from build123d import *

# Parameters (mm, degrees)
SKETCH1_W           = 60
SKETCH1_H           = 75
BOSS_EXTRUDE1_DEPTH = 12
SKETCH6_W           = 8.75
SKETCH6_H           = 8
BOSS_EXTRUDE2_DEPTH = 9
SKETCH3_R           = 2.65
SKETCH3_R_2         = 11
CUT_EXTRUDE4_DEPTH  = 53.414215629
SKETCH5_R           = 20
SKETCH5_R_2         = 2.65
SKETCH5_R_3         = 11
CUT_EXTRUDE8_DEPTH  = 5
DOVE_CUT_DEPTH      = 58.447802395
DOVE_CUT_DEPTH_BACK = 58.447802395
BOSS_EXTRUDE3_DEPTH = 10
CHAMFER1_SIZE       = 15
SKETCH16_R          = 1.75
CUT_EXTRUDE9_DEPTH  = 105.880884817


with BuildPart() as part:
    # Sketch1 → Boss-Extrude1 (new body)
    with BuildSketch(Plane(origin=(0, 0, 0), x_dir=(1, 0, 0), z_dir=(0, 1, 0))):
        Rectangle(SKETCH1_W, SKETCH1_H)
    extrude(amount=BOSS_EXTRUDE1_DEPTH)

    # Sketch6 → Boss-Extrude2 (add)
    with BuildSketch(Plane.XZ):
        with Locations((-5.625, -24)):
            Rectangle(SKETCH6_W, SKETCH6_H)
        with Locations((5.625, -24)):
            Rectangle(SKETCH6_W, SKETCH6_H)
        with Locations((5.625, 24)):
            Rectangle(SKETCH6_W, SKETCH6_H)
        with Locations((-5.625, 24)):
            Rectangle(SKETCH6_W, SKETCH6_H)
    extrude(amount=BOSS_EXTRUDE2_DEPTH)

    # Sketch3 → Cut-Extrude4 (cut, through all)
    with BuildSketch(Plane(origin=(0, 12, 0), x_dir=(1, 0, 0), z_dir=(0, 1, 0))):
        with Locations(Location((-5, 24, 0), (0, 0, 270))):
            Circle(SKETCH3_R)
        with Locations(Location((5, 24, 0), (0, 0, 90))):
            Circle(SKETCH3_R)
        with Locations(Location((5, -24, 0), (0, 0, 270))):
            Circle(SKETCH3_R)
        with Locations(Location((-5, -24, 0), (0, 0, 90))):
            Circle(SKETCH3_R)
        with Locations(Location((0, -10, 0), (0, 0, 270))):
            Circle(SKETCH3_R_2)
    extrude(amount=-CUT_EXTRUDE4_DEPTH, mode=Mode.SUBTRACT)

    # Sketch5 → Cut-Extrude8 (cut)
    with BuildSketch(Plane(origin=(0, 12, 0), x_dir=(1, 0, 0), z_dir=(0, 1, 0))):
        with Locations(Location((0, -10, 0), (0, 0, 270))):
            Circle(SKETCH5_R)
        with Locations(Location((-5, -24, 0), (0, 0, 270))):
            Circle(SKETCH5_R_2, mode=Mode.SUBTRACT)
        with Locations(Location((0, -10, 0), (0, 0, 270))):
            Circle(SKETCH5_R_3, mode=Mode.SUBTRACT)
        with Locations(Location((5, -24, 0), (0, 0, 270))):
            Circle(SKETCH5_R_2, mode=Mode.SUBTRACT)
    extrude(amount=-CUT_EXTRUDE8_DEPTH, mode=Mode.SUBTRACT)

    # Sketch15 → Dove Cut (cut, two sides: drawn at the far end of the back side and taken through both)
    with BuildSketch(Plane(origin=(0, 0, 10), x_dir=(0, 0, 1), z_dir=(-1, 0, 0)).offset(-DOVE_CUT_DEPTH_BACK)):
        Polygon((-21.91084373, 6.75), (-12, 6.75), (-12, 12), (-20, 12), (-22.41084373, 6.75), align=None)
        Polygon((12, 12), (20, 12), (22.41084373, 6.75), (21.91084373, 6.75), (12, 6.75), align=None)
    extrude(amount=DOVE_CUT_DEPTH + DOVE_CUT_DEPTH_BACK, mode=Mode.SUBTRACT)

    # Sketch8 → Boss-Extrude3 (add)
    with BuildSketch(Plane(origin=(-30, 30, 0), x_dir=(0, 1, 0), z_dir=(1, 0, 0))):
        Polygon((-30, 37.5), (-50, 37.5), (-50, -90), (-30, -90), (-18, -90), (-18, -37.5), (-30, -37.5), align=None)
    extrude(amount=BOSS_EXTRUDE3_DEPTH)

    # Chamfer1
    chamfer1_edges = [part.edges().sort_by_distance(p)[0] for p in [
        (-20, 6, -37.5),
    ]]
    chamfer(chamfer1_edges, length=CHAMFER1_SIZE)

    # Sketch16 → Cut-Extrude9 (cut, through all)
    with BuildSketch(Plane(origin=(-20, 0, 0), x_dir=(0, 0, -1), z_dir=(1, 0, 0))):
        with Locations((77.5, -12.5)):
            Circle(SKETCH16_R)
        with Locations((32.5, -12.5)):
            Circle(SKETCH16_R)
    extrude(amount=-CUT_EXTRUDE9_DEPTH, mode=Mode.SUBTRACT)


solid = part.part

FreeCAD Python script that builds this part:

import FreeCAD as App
import Part
import Sketcher
from FreeCAD import Vector
Q = App.Units.Quantity


def edges_at(feature, points):
    """Names of the edges that pass closest to the given points."""
    edges = feature.Shape.Edges
    near = lambda p: min(range(len(edges)), key=lambda i: edges[i].distToShape(Part.Vertex(*p))[0])
    return sorted({f"Edge{near(p) + 1}" for p in points})

doc = App.newDocument("Part")
body = doc.addObject("PartDesign::Body", "Body")

sketch1 = body.newObject("Sketcher::SketchObject", "Sketch")
sketch1.AttachmentSupport = (doc.getObject("XZ_Plane"), [""])
sketch1.MapMode = "FlatFace"
sketch1.addGeometry(Part.LineSegment(Vector(-30, -38, 0), Vector(-30, 38, 0)), False)
sketch1.addGeometry(Part.LineSegment(Vector(-30, 38, 0), Vector(30, 38, 0)), False)
sketch1.addGeometry(Part.LineSegment(Vector(30, 38, 0), Vector(30, -38, 0)), False)
sketch1.addGeometry(Part.LineSegment(Vector(30, -38, 0), Vector(-30, -38, 0)), False)
sketch1.addConstraint(Sketcher.Constraint("Coincident", 0, 2, 1, 1))
sketch1.addConstraint(Sketcher.Constraint("Coincident", 1, 2, 2, 1))
sketch1.addConstraint(Sketcher.Constraint("Coincident", 2, 2, 3, 1))
sketch1.addConstraint(Sketcher.Constraint("Coincident", 3, 2, 0, 1))
sketch1.addConstraint(Sketcher.Constraint("Vertical", 0))
sketch1.addConstraint(Sketcher.Constraint("Horizontal", 1))
sketch1.addConstraint(Sketcher.Constraint("Vertical", 2))
sketch1.addConstraint(Sketcher.Constraint("Horizontal", 3))
sketch1.addConstraint(Sketcher.Constraint("Symmetric", 0, 2, 2, 2, -1, 1))
sketch1.addConstraint(Sketcher.Constraint("DistanceX", 1, 1, 1, 2, Q("60 mm")))
sketch1.addConstraint(Sketcher.Constraint("DistanceY", 0, 1, 0, 2, Q("75 mm")))
pad1 = body.newObject("PartDesign::Pad", "Pad")
pad1.Profile = sketch1
pad1.Length = 12
pad1.Reversed = True

sketch2 = body.newObject("Sketcher::SketchObject", "Sketch001")
sketch2.AttachmentSupport = (doc.getObject("XZ_Plane"), [""])
sketch2.MapMode = "FlatFace"
sketch2.addGeometry(Part.LineSegment(Vector(-10, -20, 0), Vector(-10, -28, 0)), False)
sketch2.addGeometry(Part.LineSegment(Vector(-10, -28, 0), Vector(-1, -28, 0)), False)
sketch2.addGeometry(Part.LineSegment(Vector(-1, -28, 0), Vector(-1, -20, 0)), False)
sketch2.addGeometry(Part.LineSegment(Vector(-1, -20, 0), Vector(-10, -20, 0)), False)
sketch2.addGeometry(Part.LineSegment(Vector(1, -20, 0), Vector(1, -28, 0)), False)
sketch2.addGeometry(Part.LineSegment(Vector(1, -28, 0), Vector(10, -28, 0)), False)
sketch2.addGeometry(Part.LineSegment(Vector(10, -28, 0), Vector(10, -20, 0)), False)
sketch2.addGeometry(Part.LineSegment(Vector(10, -20, 0), Vector(1, -20, 0)), False)
sketch2.addGeometry(Part.LineSegment(Vector(1, 28, 0), Vector(1, 20, 0)), False)
sketch2.addGeometry(Part.LineSegment(Vector(1, 20, 0), Vector(10, 20, 0)), False)
sketch2.addGeometry(Part.LineSegment(Vector(10, 20, 0), Vector(10, 28, 0)), False)
sketch2.addGeometry(Part.LineSegment(Vector(10, 28, 0), Vector(1, 28, 0)), False)
sketch2.addGeometry(Part.LineSegment(Vector(-10, 28, 0), Vector(-10, 20, 0)), False)
sketch2.addGeometry(Part.LineSegment(Vector(-10, 20, 0), Vector(-1, 20, 0)), False)
sketch2.addGeometry(Part.LineSegment(Vector(-1, 20, 0), Vector(-1, 28, 0)), False)
sketch2.addGeometry(Part.LineSegment(Vector(-1, 28, 0), Vector(-10, 28, 0)), False)
sketch2.addConstraint(Sketcher.Constraint("Coincident", 0, 2, 1, 1))
sketch2.addConstraint(Sketcher.Constraint("Coincident", 1, 2, 2, 1))
sketch2.addConstraint(Sketcher.Constraint("Coincident", 2, 2, 3, 1))
sketch2.addConstraint(Sketcher.Constraint("Coincident", 3, 2, 0, 1))
sketch2.addConstraint(Sketcher.Constraint("Coincident", 4, 2, 5, 1))
sketch2.addConstraint(Sketcher.Constraint("Coincident", 5, 2, 6, 1))
sketch2.addConstraint(Sketcher.Constraint("Coincident", 6, 2, 7, 1))
sketch2.addConstraint(Sketcher.Constraint("Coincident", 7, 2, 4, 1))
sketch2.addConstraint(Sketcher.Constraint("Coincident", 8, 2, 9, 1))
sketch2.addConstraint(Sketcher.Constraint("Coincident", 9, 2, 10, 1))
sketch2.addConstraint(Sketcher.Constraint("Coincident", 10, 2, 11, 1))
sketch2.addConstraint(Sketcher.Constraint("Coincident", 11, 2, 8, 1))
sketch2.addConstraint(Sketcher.Constraint("Coincident", 12, 2, 13, 1))
sketch2.addConstraint(Sketcher.Constraint("Coincident", 13, 2, 14, 1))
sketch2.addConstraint(Sketcher.Constraint("Coincident", 14, 2, 15, 1))
sketch2.addConstraint(Sketcher.Constraint("Coincident", 15, 2, 12, 1))
sketch2.addConstraint(Sketcher.Constraint("Vertical", 0))
sketch2.addConstraint(Sketcher.Constraint("Horizontal", 1))
sketch2.addConstraint(Sketcher.Constraint("Vertical", 2))
sketch2.addConstraint(Sketcher.Constraint("Horizontal", 3))
sketch2.addConstraint(Sketcher.Constraint("Vertical", 4))
sketch2.addConstraint(Sketcher.Constraint("Horizontal", 5))
sketch2.addConstraint(Sketcher.Constraint("Vertical", 6))
sketch2.addConstraint(Sketcher.Constraint("Horizontal", 7))
sketch2.addConstraint(Sketcher.Constraint("Vertical", 8))
sketch2.addConstraint(Sketcher.Constraint("Horizontal", 9))
sketch2.addConstraint(Sketcher.Constraint("Vertical", 10))
sketch2.addConstraint(Sketcher.Constraint("Horizontal", 11))
sketch2.addConstraint(Sketcher.Constraint("Vertical", 12))
sketch2.addConstraint(Sketcher.Constraint("Horizontal", 13))
sketch2.addConstraint(Sketcher.Constraint("Vertical", 14))
sketch2.addConstraint(Sketcher.Constraint("Horizontal", 15))
sketch2.addConstraint(Sketcher.Constraint("Symmetric", 2, 2, 8, 2, -1, 1))
sketch2.addConstraint(Sketcher.Constraint("Symmetric", 0, 2, 10, 2, -1, 1))
sketch2.addConstraint(Sketcher.Constraint("Symmetric", 6, 2, 12, 2, -1, 1))
sketch2.addConstraint(Sketcher.Constraint("Symmetric", 4, 2, 14, 2, -1, 1))
sketch2.addConstraint(Sketcher.Constraint("Symmetric", 1, 2, 4, 2, -2))
sketch2.addConstraint(Sketcher.Constraint("Symmetric", 3, 2, 6, 2, -2))
sketch2.addConstraint(Sketcher.Constraint("DistanceY", 0, 2, 0, 1, Q("8 mm")))
sketch2.addConstraint(Sketcher.Constraint("DistanceX", 0, 2, -1, 1, Q("10 mm")))
sketch2.addConstraint(Sketcher.Constraint("DistanceY", 0, 2, -1, 1, Q("28 mm")))
sketch2.addConstraint(Sketcher.Constraint("DistanceX", 1, 1, 1, 2, Q("8.75 mm")))
pad2 = body.newObject("PartDesign::Pad", "Pad001")
pad2.Profile = sketch2
pad2.Length = 9

sketch3 = body.newObject("Sketcher::SketchObject", "Sketch002")
sketch3.AttachmentSupport = (doc.getObject("XZ_Plane"), [""])
sketch3.MapMode = "FlatFace"
sketch3.AttachmentOffset = App.Placement(Vector(0, 0, -12), App.Rotation())
sketch3.addGeometry(Part.Circle(Vector(-5, -24, 0), Vector(0, 0, 1), 2.6), False)
sketch3.addGeometry(Part.Circle(Vector(5, -24, 0), Vector(0, 0, 1), 2.6), False)
sketch3.addGeometry(Part.Circle(Vector(5, 24, 0), Vector(0, 0, 1), 2.6), False)
sketch3.addGeometry(Part.Circle(Vector(-5, 24, 0), Vector(0, 0, 1), 2.6), False)
sketch3.addGeometry(Part.Circle(Vector(0, 10, 0), Vector(0, 0, 1), 11), False)
sketch3.addConstraint(Sketcher.Constraint("Equal", 0, 1))
sketch3.addConstraint(Sketcher.Constraint("Equal", 1, 2))
sketch3.addConstraint(Sketcher.Constraint("Equal", 2, 3))
sketch3.addConstraint(Sketcher.Constraint("Symmetric", 0, 3, 2, 3, -1, 1))
sketch3.addConstraint(Sketcher.Constraint("Symmetric", 1, 3, 3, 3, -1, 1))
sketch3.addConstraint(Sketcher.Constraint("Symmetric", 0, 3, 1, 3, -2))
sketch3.addConstraint(Sketcher.Constraint("PointOnObject", 4, 3, -2))
sketch3.addConstraint(Sketcher.Constraint("Diameter", 4, Q("22 mm")))
sketch3.addConstraint(Sketcher.Constraint("Diameter", 0, Q("5.3 mm")))
sketch3.addConstraint(Sketcher.Constraint("DistanceX", 0, 3, -1, 1, Q("5 mm")))
sketch3.addConstraint(Sketcher.Constraint("DistanceY", 0, 3, -1, 1, Q("24 mm")))
sketch3.addConstraint(Sketcher.Constraint("DistanceY", -1, 1, 4, 3, Q("10 mm")))
pocket1 = body.newObject("PartDesign::Pocket", "Pocket")
pocket1.Profile = sketch3
pocket1.Type = "ThroughAll"
pocket1.Reversed = True

sketch4 = body.newObject("Sketcher::SketchObject", "Sketch003")
sketch4.AttachmentSupport = (doc.getObject("XZ_Plane"), [""])
sketch4.MapMode = "FlatFace"
sketch4.AttachmentOffset = App.Placement(Vector(0, 0, -12), App.Rotation())
sketch4.addGeometry(Part.Circle(Vector(0, 10, 0), Vector(0, 0, 1), 20), False)
sketch4.addGeometry(Part.Circle(Vector(-5, 24, 0), Vector(0, 0, 1), 2.6), False)
sketch4.addGeometry(Part.Circle(Vector(0, 10, 0), Vector(0, 0, 1), 11), False)
sketch4.addGeometry(Part.Circle(Vector(5, 24, 0), Vector(0, 0, 1), 2.6), False)
sketch4.addConstraint(Sketcher.Constraint("Coincident", 2, 3, 0, 3))
sketch4.addConstraint(Sketcher.Constraint("Equal", 1, 3))
sketch4.addConstraint(Sketcher.Constraint("Symmetric", 1, 3, 3, 3, -2))
sketch4.addConstraint(Sketcher.Constraint("PointOnObject", 0, 3, -2))
sketch4.addConstraint(Sketcher.Constraint("Diameter", 0, Q("40 mm")))
sketch4.addConstraint(Sketcher.Constraint("Diameter", 2, Q("22 mm")))
sketch4.addConstraint(Sketcher.Constraint("Diameter", 1, Q("5.3 mm")))
sketch4.addConstraint(Sketcher.Constraint("DistanceY", -1, 1, 0, 3, Q("10 mm")))
sketch4.addConstraint(Sketcher.Constraint("DistanceX", 1, 3, -1, 1, Q("5 mm")))
sketch4.addConstraint(Sketcher.Constraint("DistanceY", -1, 1, 1, 3, Q("24 mm")))
pocket2 = body.newObject("PartDesign::Pocket", "Pocket001")
pocket2.Profile = sketch4
pocket2.Length = 5
pocket2.Reversed = True

sketch5 = body.newObject("Sketcher::SketchObject", "Sketch004")
sketch5.AttachmentSupport = (doc.getObject("YZ_Plane"), [""])
sketch5.MapMode = "FlatFace"
sketch5.addGeometry(Part.LineSegment(Vector(7, -2, 0), Vector(12, -2, 0)), False)
sketch5.addGeometry(Part.LineSegment(Vector(12, -2, 0), Vector(12, -10, 0)), False)
sketch5.addGeometry(Part.LineSegment(Vector(12, -10, 0), Vector(7, -12, 0)), False)
sketch5.addGeometry(Part.LineSegment(Vector(7, -12, 0), Vector(7, -2, 0)), False)
sketch5.addGeometry(Part.LineSegment(Vector(12, 30, 0), Vector(12, 22, 0)), False)
sketch5.addGeometry(Part.LineSegment(Vector(12, 22, 0), Vector(7, 22, 0)), False)
sketch5.addGeometry(Part.LineSegment(Vector(7, 22, 0), Vector(7, 32, 0)), False)
sketch5.addGeometry(Part.LineSegment(Vector(7, 32, 0), Vector(12, 30, 0)), False)
sketch5.addConstraint(Sketcher.Constraint("Coincident", 0, 2, 1, 1))
sketch5.addConstraint(Sketcher.Constraint("Coincident", 1, 2, 2, 1))
sketch5.addConstraint(Sketcher.Constraint("Coincident", 2, 2, 3, 1))
sketch5.addConstraint(Sketcher.Constraint("Coincident", 3, 2, 0, 1))
sketch5.addConstraint(Sketcher.Constraint("Coincident", 4, 2, 5, 1))
sketch5.addConstraint(Sketcher.Constraint("Coincident", 5, 2, 6, 1))
sketch5.addConstraint(Sketcher.Constraint("Coincident", 6, 2, 7, 1))
sketch5.addConstraint(Sketcher.Constraint("Coincident", 7, 2, 4, 1))
sketch5.addConstraint(Sketcher.Constraint("Horizontal", 0))
sketch5.addConstraint(Sketcher.Constraint("Vertical", 1))
sketch5.addConstraint(Sketcher.Constraint("Vertical", 3))
sketch5.addConstraint(Sketcher.Constraint("Vertical", 4))
sketch5.addConstraint(Sketcher.Constraint("Horizontal", 5))
sketch5.addConstraint(Sketcher.Constraint("Vertical", 6))
sketch5.addConstraint(Sketcher.Constraint("Vertical", 1, 2, 4, 2))
sketch5.addConstraint(Sketcher.Constraint("Vertical", 3, 2, 5, 2))
sketch5.addConstraint(Sketcher.Constraint("Equal", 1, 4))
sketch5.addConstraint(Sketcher.Constraint("Equal", 3, 6))
sketch5.addConstraint(Sketcher.Constraint("DistanceY", 1, 2, 1, 1, Q("8 mm")))
sketch5.addConstraint(Sketcher.Constraint("DistanceX", -1, 1, 0, 2, Q("12 mm")))
sketch5.addConstraint(Sketcher.Constraint("DistanceY", 0, 2, -1, 1, Q("2 mm")))
sketch5.addConstraint(Sketcher.Constraint("DistanceY", -1, 1, 4, 2, Q("22 mm")))
sketch5.addConstraint(Sketcher.Constraint("DistanceX", 0, 1, 0, 2, Q("5.25 mm")))
sketch5.addConstraint(Sketcher.Constraint("Distance", 2, Q("5.777081 mm")))
pocket3 = body.newObject("PartDesign::Pocket", "Pocket002")
pocket3.Profile = sketch5
pocket3.Type = "ThroughAll"
pocket3.Midplane = True

sketch6 = body.newObject("Sketcher::SketchObject", "Sketch005")
sketch6.AttachmentSupport = (doc.getObject("YZ_Plane"), [""])
sketch6.MapMode = "FlatFace"
sketch6.AttachmentOffset = App.Placement(Vector(0, 0, -30), App.Rotation())
sketch6.addGeometry(Part.LineSegment(Vector(0, 38, 0), Vector(-20, 38, 0)), False)
sketch6.addGeometry(Part.LineSegment(Vector(-20, 38, 0), Vector(-20, -90, 0)), False)
sketch6.addGeometry(Part.LineSegment(Vector(-20, -90, 0), Vector(12, -90, 0)), False)
sketch6.addGeometry(Part.LineSegment(Vector(12, -90, 0), Vector(12, -38, 0)), False)
sketch6.addGeometry(Part.LineSegment(Vector(12, -38, 0), Vector(0, -38, 0)), False)
sketch6.addGeometry(Part.LineSegment(Vector(0, -38, 0), Vector(0, 38, 0)), False)
sketch6.addConstraint(Sketcher.Constraint("Coincident", 0, 2, 1, 1))
sketch6.addConstraint(Sketcher.Constraint("Coincident", 1, 2, 2, 1))
sketch6.addConstraint(Sketcher.Constraint("Coincident", 2, 2, 3, 1))
sketch6.addConstraint(Sketcher.Constraint("Coincident", 3, 2, 4, 1))
sketch6.addConstraint(Sketcher.Constraint("Coincident", 4, 2, 5, 1))
sketch6.addConstraint(Sketcher.Constraint("Coincident", 5, 2, 0, 1))
sketch6.addConstraint(Sketcher.Constraint("Horizontal", 0))
sketch6.addConstraint(Sketcher.Constraint("Vertical", 1))
sketch6.addConstraint(Sketcher.Constraint("Horizontal", 2))
sketch6.addConstraint(Sketcher.Constraint("Vertical", 3))
sketch6.addConstraint(Sketcher.Constraint("Horizontal", 4))
sketch6.addConstraint(Sketcher.Constraint("Vertical", 5))
sketch6.addConstraint(Sketcher.Constraint("Symmetric", 4, 2, 5, 2, -1, 1))
sketch6.addConstraint(Sketcher.Constraint("DistanceX", 0, 2, 0, 1, Q("20 mm")))
sketch6.addConstraint(Sketcher.Constraint("DistanceX", 2, 1, 2, 2, Q("32 mm")))
sketch6.addConstraint(Sketcher.Constraint("DistanceY", 5, 1, 5, 2, Q("75 mm")))
sketch6.addConstraint(Sketcher.Constraint("DistanceY", 1, 2, 1, 1, Q("127.5 mm")))
pad3 = body.newObject("PartDesign::Pad", "Pad002")
pad3.Profile = sketch6
pad3.Length = 10
doc.recompute()

chamfer = body.newObject("PartDesign::Chamfer", "Chamfer")
chamfer.Base = (pad3, edges_at(pad3, [(-20, 6, -37.5)]))
chamfer.Size = 15

sketch7 = body.newObject("Sketcher::SketchObject", "Sketch006")
sketch7.AttachmentSupport = (doc.getObject("YZ_Plane"), [""])
sketch7.MapMode = "FlatFace"
sketch7.AttachmentOffset = App.Placement(Vector(0, 0, -20), App.Rotation())
sketch7.addGeometry(Part.Circle(Vector(-12.5, -77.5, 0), Vector(0, 0, 1), 1.8), False)
sketch7.addGeometry(Part.Circle(Vector(-12.5, -32.5, 0), Vector(0, 0, 1), 1.8), False)
sketch7.addConstraint(Sketcher.Constraint("Equal", 0, 1))
sketch7.addConstraint(Sketcher.Constraint("Vertical", 0, 3, 1, 3))
sketch7.addConstraint(Sketcher.Constraint("Diameter", 0, Q("3.5 mm")))
sketch7.addConstraint(Sketcher.Constraint("DistanceY", 0, 3, 1, 3, Q("45 mm")))
sketch7.addConstraint(Sketcher.Constraint("DistanceX", 0, 3, -1, 1, Q("12.5 mm")))
sketch7.addConstraint(Sketcher.Constraint("DistanceY", 0, 3, -1, 1, Q("77.5 mm")))
pocket4 = body.newObject("PartDesign::Pocket", "Pocket003")
pocket4.Profile = sketch7
pocket4.Type = "ThroughAll"

doc.recompute()
